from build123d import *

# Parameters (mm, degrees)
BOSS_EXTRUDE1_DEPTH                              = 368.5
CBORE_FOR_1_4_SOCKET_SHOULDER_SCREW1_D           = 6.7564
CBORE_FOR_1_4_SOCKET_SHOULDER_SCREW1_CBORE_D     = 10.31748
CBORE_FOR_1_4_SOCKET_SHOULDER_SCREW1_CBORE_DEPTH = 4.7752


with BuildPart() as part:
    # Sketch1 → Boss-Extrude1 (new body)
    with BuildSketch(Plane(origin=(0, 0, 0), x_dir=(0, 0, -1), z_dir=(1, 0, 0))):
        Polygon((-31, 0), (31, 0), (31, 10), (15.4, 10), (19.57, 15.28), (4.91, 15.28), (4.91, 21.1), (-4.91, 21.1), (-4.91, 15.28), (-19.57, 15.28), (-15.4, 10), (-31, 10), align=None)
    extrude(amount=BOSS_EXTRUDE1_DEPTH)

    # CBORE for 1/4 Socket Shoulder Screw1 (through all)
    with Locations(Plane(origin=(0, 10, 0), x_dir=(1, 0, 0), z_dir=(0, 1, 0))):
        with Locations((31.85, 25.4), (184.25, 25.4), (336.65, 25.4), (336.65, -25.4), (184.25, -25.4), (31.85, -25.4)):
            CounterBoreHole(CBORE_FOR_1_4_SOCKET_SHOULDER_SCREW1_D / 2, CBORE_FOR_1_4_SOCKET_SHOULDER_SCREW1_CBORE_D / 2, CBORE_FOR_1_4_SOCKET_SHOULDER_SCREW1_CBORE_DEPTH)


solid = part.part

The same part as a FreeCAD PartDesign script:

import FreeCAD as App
import Part
import Sketcher

V = App.Vector
Q = App.Units.Quantity


def add_polygon(sketch, points):
    """Adds a closed chain of lines whose ends are joined by coincident constraints."""
    first, n = sketch.GeometryCount, len(points)
    for a, b in zip(points, points[1:] + points[:1]):
        sketch.addGeometry(Part.LineSegment(App.Vector(*a, 0), App.Vector(*b, 0)), False)
    for i in range(n):
        sketch.addConstraint(Sketcher.Constraint("Coincident", first + i, 2, first + (i + 1) % n, 1))

doc = App.newDocument("Part")
body = doc.addObject("PartDesign::Body", "Body")

# Sketch on YZ plane
sketch1 = body.newObject("Sketcher::SketchObject", "Sketch")
sketch1.AttachmentSupport = (doc.getObject("YZ_Plane"), [""])
sketch1.MapMode = "FlatFace"
add_polygon(sketch1, [(0, 31), (0, -31), (10, -31), (10, -15), (15, -20), (15, -5), (21, -5), (21, 5), (15, 5), (15, 20), (10, 15), (10, 31)])  # lines 0-11
sketch1.addConstraint(Sketcher.Constraint("Vertical", 0))
sketch1.addConstraint(Sketcher.Constraint("Horizontal", 1))
sketch1.addConstraint(Sketcher.Constraint("Vertical", 2))
sketch1.addConstraint(Sketcher.Constraint("Vertical", 4))
sketch1.addConstraint(Sketcher.Constraint("Horizontal", 5))
sketch1.addConstraint(Sketcher.Constraint("Vertical", 6))
sketch1.addConstraint(Sketcher.Constraint("Horizontal", 7))
sketch1.addConstraint(Sketcher.Constraint("Vertical", 8))
sketch1.addConstraint(Sketcher.Constraint("Vertical", 10))
sketch1.addConstraint(Sketcher.Constraint("Horizontal", 11))
sketch1.addConstraint(Sketcher.Constraint("Symmetric", 0, 2, 11, 2, -1, 1))
sketch1.addConstraint(Sketcher.Constraint("Symmetric", 4, 2, 7, 2, -1))
sketch1.addConstraint(Sketcher.Constraint("Symmetric", 2, 2, 9, 2, -1))
sketch1.addConstraint(Sketcher.Constraint("Equal", 4, 8))
sketch1.addConstraint(Sketcher.Constraint("DistanceX", 1, 1, 1, 2, Q("10 mm")))
sketch1.addConstraint(Sketcher.Constraint("DistanceY", 0, 2, 0, 1, Q("62 mm")))
sketch1.addConstraint(Sketcher.Constraint("DistanceY", 2, 1, 2, 2, Q("15.6 mm")))
sketch1.addConstraint(Sketcher.Constraint("DistanceX", 5, 1, 5, 2, Q("5.82 mm")))
sketch1.addConstraint(Sketcher.Constraint("DistanceY", 4, 1, 4, 2, Q("14.66 mm")))
sketch1.addConstraint(Sketcher.Constraint("DistanceY", 6, 1, 6, 2, Q("9.82 mm")))
sketch1.addConstraint(Sketcher.Constraint("DistanceX", -1, 1, 5, 2, Q("21.1 mm")))
pad1 = body.newObject("PartDesign::Pad", "Pad")
pad1.Profile = sketch1
pad1.Length = 368.5

# Sketch on XZ plane
sketch2 = body.newObject("Sketcher::SketchObject", "Sketch001")
sketch2.AttachmentSupport = (doc.getObject("XZ_Plane"), [""])
sketch2.MapMode = "FlatFace"
sketch2.AttachmentOffset = App.Placement(V(0, 0, -10), App.Rotation())
sketch2.addGeometry(Part.Circle(V(31.9, -25.4, 0), V(0, 0, 1), 3.4), False)
sketch2.addGeometry(Part.Circle(V(184.2, -25.4, 0), V(0, 0, 1), 3.4), False)
sketch2.addGeometry(Part.Circle(V(336.6, -25.4, 0), V(0, 0, 1), 3.4), False)
sketch2.addGeometry(Part.Circle(V(336.6, 25.4, 0), V(0, 0, 1), 3.4), False)
sketch2.addGeometry(Part.Circle(V(184.2, 25.4, 0), V(0, 0, 1), 3.4), False)
sketch2.addGeometry(Part.Circle(V(31.9, 25.4, 0), V(0, 0, 1), 3.4), False)
sketch2.addConstraint(Sketcher.Constraint("Equal", 0, 1))
sketch2.addConstraint(Sketcher.Constraint("Equal", 1, 2))
sketch2.addConstraint(Sketcher.Constraint("Equal", 2, 3))
sketch2.addConstraint(Sketcher.Constraint("Equal", 3, 4))
sketch2.addConstraint(Sketcher.Constraint("Equal", 4, 5))
sketch2.addConstraint(Sketcher.Constraint("Symmetric", 2, 3, 3, 3, -1))
sketch2.addConstraint(Sketcher.Constraint("Symmetric", 1, 3, 4, 3, -1))
sketch2.addConstraint(Sketcher.Constraint("Symmetric", 0, 3, 5, 3, -1))
sketch2.addConstraint(Sketcher.Constraint("Horizontal", 0, 3, 1, 3))
sketch2.addConstraint(Sketcher.Constraint("Horizontal", 1, 3, 2, 3))
sketch2.addConstraint(Sketcher.Constraint("Diameter", 0, Q("6.7564 mm")))
sketch2.addConstraint(Sketcher.Constraint("DistanceY", 0, 3, -1, 1, Q("25.4 mm")))
sketch2.addConstraint(Sketcher.Constraint("DistanceX", 0, 3, 1, 3, Q("152.4 mm")))
sketch2.addConstraint(Sketcher.Constraint("DistanceX", 1, 3, 2, 3, Q("152.4 mm")))
sketch2.addConstraint(Sketcher.Constraint("DistanceX", -1, 1, 0, 3, Q("31.85 mm")))
doc.recompute()
hole = body.newObject("PartDesign::Hole", "Hole")
hole.Profile = sketch2
hole.ThreadType = "None"
hole.Diameter = 6.7564
hole.DepthType = "ThroughAll"
hole.HoleCutType = "Counterbore"
hole.HoleCutDiameter = 10.31748
hole.HoleCutDepth = 4.7752
hole.Reversed = True

doc.recompute()
